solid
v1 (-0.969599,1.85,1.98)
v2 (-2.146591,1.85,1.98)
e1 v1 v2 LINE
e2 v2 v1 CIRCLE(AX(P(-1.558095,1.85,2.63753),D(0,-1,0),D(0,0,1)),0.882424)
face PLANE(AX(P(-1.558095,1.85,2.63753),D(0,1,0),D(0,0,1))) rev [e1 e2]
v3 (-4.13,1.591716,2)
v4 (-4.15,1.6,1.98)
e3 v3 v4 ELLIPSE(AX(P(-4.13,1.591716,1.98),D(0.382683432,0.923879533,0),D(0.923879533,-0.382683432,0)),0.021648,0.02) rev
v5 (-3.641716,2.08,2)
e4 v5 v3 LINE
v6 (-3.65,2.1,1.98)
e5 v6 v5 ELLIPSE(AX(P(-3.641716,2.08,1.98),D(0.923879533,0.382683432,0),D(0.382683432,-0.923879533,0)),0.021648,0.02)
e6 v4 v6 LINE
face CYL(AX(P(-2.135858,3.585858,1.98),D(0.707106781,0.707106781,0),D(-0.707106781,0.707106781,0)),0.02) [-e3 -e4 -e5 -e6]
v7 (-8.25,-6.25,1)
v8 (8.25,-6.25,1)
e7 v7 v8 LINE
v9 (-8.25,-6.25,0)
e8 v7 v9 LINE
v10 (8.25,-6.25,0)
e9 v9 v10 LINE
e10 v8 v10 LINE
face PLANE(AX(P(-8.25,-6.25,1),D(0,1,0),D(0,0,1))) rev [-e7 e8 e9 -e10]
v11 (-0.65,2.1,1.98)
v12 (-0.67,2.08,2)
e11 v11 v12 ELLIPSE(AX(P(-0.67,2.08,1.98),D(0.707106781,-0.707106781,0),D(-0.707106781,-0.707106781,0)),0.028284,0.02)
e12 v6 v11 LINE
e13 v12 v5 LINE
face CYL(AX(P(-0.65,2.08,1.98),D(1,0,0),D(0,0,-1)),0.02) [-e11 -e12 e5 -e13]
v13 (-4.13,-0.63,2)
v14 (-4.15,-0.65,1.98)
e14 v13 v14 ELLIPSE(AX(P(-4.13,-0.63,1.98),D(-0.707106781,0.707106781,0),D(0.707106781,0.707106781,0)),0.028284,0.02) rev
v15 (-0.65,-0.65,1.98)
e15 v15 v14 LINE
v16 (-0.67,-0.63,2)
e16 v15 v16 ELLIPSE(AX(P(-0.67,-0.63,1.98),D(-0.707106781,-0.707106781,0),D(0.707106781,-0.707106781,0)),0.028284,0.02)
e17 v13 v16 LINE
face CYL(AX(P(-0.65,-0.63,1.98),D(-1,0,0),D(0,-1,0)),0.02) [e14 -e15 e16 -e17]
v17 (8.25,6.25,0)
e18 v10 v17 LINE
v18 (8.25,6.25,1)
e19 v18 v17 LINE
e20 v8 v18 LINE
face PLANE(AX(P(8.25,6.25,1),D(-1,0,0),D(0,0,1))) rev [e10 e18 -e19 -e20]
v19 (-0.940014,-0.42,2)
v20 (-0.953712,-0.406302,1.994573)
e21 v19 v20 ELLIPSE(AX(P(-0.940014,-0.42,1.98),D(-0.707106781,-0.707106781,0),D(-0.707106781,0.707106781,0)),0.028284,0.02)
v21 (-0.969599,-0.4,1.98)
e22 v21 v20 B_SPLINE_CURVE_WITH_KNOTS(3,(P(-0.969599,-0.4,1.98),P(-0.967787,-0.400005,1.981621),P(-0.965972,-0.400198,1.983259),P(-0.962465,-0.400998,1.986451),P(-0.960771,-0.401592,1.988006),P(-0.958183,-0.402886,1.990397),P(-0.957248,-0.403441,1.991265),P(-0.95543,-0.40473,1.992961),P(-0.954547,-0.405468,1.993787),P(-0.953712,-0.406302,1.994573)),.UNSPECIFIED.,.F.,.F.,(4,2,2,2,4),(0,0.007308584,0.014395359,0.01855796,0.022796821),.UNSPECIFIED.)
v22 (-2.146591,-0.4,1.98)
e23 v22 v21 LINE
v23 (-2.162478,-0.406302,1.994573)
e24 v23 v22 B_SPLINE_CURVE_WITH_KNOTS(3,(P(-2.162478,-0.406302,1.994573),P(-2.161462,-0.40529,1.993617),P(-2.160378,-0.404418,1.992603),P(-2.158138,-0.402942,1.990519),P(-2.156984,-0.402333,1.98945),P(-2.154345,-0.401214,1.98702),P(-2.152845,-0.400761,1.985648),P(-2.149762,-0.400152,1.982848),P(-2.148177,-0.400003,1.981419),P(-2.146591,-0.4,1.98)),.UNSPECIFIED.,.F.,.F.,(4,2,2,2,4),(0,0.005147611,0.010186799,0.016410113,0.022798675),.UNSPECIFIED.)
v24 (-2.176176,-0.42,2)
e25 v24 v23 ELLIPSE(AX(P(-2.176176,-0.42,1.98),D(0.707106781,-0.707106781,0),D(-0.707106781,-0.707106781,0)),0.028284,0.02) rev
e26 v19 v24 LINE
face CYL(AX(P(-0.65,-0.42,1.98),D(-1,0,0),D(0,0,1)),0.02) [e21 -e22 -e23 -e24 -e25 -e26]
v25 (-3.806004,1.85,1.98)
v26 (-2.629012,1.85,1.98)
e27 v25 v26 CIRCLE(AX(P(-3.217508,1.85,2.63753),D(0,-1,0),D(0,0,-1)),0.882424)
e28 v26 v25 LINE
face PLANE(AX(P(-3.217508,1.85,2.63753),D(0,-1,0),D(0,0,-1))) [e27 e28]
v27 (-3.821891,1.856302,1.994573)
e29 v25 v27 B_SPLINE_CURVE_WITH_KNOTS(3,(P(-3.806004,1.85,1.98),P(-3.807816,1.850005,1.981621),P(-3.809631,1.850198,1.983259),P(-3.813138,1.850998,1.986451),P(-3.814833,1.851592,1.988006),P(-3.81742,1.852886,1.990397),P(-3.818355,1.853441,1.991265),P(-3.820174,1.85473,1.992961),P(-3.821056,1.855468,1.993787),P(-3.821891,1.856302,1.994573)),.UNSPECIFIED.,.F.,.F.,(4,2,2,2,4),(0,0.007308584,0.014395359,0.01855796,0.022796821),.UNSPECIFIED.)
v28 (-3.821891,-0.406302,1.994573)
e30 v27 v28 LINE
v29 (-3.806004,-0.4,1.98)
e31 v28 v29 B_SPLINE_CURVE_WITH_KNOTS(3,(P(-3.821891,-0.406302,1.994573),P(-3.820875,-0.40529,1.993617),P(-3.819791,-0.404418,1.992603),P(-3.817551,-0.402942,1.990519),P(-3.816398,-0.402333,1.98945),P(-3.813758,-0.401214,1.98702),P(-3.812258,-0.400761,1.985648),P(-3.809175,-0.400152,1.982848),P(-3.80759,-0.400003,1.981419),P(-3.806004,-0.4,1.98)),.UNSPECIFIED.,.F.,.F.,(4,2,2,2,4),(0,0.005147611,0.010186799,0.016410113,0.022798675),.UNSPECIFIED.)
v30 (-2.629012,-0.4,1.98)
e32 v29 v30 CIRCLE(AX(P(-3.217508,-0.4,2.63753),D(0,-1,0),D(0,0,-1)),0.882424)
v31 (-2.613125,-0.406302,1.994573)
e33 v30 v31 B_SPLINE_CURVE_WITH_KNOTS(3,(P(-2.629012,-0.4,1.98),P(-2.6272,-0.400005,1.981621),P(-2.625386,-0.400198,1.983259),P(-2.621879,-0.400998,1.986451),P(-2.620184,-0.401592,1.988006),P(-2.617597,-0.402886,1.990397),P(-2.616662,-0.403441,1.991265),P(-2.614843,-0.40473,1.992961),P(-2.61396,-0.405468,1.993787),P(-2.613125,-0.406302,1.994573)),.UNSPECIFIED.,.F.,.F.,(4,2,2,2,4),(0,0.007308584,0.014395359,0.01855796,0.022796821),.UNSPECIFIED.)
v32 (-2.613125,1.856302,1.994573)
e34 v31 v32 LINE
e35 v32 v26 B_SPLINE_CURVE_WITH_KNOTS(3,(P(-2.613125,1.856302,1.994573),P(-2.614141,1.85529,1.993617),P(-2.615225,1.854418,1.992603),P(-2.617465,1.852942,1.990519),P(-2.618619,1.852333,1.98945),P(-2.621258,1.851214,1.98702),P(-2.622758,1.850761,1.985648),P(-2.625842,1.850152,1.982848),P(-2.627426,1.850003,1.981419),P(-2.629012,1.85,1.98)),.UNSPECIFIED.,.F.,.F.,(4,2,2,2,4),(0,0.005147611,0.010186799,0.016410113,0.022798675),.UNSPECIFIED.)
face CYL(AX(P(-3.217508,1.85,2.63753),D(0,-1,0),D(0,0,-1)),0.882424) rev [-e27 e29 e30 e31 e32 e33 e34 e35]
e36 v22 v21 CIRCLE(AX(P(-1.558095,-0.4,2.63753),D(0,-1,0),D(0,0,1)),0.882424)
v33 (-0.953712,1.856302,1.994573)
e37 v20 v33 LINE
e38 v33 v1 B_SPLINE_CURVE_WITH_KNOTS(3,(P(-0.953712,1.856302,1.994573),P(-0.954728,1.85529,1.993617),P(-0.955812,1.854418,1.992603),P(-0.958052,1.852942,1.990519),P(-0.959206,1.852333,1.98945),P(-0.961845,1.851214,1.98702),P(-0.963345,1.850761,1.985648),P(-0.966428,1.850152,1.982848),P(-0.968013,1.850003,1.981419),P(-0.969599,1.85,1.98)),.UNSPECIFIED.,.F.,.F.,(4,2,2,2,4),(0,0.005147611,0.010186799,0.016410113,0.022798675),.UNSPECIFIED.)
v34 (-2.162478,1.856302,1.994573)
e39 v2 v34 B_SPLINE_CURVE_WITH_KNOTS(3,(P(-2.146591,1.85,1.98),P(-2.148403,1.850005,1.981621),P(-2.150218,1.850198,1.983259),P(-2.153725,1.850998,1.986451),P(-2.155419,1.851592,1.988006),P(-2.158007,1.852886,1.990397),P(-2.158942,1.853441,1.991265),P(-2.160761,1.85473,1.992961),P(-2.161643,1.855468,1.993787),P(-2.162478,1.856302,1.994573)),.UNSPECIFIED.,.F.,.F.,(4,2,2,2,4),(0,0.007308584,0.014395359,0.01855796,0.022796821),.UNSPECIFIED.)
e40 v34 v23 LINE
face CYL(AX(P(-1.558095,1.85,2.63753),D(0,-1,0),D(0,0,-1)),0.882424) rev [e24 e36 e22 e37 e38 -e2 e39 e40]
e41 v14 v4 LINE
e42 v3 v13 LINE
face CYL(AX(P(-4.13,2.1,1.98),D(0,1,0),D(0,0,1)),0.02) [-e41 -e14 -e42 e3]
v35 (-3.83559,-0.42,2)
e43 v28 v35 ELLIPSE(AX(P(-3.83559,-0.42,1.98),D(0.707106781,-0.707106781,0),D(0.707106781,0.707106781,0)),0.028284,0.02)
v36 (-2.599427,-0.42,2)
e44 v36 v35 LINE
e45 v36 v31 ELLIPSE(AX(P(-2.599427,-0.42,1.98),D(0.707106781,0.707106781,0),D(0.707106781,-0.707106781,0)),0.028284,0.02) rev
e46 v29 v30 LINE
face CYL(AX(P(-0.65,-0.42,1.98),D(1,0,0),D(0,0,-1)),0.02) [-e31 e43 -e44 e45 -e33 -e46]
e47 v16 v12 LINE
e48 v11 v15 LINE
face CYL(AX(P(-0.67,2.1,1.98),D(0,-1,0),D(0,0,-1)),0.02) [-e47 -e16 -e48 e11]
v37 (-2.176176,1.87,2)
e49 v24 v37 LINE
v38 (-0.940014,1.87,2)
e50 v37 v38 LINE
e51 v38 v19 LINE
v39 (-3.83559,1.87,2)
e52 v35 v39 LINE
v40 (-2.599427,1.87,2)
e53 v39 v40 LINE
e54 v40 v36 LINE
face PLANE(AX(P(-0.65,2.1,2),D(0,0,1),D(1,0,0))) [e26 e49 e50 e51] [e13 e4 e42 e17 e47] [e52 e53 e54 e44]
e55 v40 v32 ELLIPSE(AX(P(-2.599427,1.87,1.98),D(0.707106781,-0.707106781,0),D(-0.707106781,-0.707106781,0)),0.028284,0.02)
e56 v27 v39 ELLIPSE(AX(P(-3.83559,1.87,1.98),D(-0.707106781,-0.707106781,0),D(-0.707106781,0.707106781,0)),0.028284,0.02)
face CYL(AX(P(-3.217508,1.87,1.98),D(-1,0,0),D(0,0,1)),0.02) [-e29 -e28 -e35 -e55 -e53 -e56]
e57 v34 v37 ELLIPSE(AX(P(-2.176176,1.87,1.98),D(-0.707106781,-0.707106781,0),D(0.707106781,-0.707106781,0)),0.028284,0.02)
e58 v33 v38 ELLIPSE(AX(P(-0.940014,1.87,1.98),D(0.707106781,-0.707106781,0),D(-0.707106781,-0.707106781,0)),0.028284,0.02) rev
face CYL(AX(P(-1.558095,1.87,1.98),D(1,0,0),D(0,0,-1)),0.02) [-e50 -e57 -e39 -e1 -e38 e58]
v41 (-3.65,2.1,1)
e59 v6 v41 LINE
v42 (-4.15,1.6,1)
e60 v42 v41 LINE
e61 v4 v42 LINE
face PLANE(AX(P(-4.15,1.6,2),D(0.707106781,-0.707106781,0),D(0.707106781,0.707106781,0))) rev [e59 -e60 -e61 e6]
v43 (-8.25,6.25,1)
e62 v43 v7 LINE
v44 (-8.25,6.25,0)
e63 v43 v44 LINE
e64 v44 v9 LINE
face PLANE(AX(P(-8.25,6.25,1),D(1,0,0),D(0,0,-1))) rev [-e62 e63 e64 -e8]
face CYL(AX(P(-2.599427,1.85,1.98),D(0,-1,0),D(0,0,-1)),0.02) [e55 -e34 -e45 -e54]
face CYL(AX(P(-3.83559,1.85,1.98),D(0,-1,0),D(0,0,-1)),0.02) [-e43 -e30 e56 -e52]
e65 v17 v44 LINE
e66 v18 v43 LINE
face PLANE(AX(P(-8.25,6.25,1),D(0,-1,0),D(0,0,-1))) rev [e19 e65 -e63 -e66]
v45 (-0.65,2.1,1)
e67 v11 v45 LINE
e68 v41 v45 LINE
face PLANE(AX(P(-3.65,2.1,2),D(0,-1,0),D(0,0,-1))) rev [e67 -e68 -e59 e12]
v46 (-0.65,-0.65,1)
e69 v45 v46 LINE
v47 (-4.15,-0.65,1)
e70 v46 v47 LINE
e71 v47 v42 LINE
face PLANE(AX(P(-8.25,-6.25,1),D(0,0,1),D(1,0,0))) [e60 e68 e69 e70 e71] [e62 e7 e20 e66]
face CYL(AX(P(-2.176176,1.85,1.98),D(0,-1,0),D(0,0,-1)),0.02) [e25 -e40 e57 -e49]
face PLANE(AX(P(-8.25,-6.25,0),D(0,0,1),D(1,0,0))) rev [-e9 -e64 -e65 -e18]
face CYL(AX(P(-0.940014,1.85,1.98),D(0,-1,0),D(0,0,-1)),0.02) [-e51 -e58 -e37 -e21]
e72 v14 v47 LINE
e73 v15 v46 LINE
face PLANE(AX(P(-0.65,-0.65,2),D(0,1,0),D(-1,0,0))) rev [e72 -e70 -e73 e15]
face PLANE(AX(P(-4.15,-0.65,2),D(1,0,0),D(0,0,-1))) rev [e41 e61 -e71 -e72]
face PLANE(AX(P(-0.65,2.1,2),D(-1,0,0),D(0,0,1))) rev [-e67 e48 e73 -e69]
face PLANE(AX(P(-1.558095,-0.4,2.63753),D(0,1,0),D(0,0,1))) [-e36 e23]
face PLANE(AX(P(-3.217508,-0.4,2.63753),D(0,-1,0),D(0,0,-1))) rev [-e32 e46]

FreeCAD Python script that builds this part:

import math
import FreeCAD as App
import Part
import Sketcher
Q = App.Units.Quantity


def edges_at(feature, points):
    """Names of the edges that pass closest to the given points."""
    edges = feature.Shape.Edges
    near = lambda p: min(range(len(edges)), key=lambda i: edges[i].distToShape(Part.Vertex(*p))[0])
    return sorted({f"Edge{near(p) + 1}" for p in points})

doc = App.newDocument("Part")
params = doc.addObject("Spreadsheet::Sheet", "Params")
for row, (alias, value) in enumerate([
    ("sketch1_width", "16.5 mm"),
    ("sketch1_height", "12.5 mm"),
    ("pad1_length", "1 mm"),
    ("sketch2_width", "3 mm"),
    ("sketch2_width2", "3.5 mm"),
    ("sketch2_height", "2.25 mm"),
    ("pad2_length", "2 mm"),
    ("pocket1_length", "2.25 mm"),
    ("fillet_radius", "0.02 mm"),
], start=1):
    params.set(f"A{row}", alias)
    params.set(f"B{row}", "=" + value)
    params.setAlias(f"B{row}", alias)

body = doc.addObject("PartDesign::Body", "Body")

# Sketch on XY plane
sketch1 = body.newObject("Sketcher::SketchObject", "Sketch")
sketch1.AttachmentSupport = (doc.getObject("XY_Plane"), [""])
sketch1.MapMode = "FlatFace"
sketch1.addGeometry([
    Part.LineSegment(App.Vector(-8, 6, 0), App.Vector(-8, -6, 0)),
    Part.LineSegment(App.Vector(-8, -6, 0), App.Vector(8, -6, 0)),
    Part.LineSegment(App.Vector(8, -6, 0), App.Vector(8, 6, 0)),
    Part.LineSegment(App.Vector(8, 6, 0), App.Vector(-8, 6, 0)),
], False)
sketch1.addConstraint([
    Sketcher.Constraint("Coincident", 0, 2, 1, 1),
    Sketcher.Constraint("Coincident", 1, 2, 2, 1),
    Sketcher.Constraint("Coincident", 2, 2, 3, 1),
    Sketcher.Constraint("Coincident", 3, 2, 0, 1),
    Sketcher.Constraint("Vertical", 0),
    Sketcher.Constraint("Horizontal", 1),
    Sketcher.Constraint("Vertical", 2),
    Sketcher.Constraint("Horizontal", 3),
    Sketcher.Constraint("Symmetric", 0, 2, 2, 2, -1, 1),
    Sketcher.Constraint("DistanceX", 1, 1, 1, 2, 16.5),
    Sketcher.Constraint("DistanceY", 0, 2, 0, 1, 12.5),
])
sketch1.setExpression("Constraints[9]", "Params.sketch1_width")
sketch1.setExpression("Constraints[10]", "Params.sketch1_height")
pad1 = body.newObject("PartDesign::Pad", "Pad")
pad1.Profile = sketch1
pad1.setExpression("Length", "Params.pad1_length")

# Sketch on XY plane
sketch2 = body.newObject("Sketcher::SketchObject", "Sketch001")
sketch2.AttachmentSupport = (doc.getObject("XY_Plane"), [""])
sketch2.MapMode = "FlatFace"
sketch2.addGeometry([
    Part.LineSegment(App.Vector(-0.7, 2.1, 0), App.Vector(-3.6, 2.1, 0)),  # 0
    Part.LineSegment(App.Vector(-3.6, 2.1, 0), App.Vector(-4.2, 1.6, 0)),  # 1
    Part.LineSegment(App.Vector(-4.2, 1.6, 0), App.Vector(-4.2, -0.7, 0)),  # 2
    Part.LineSegment(App.Vector(-4.2, -0.7, 0), App.Vector(-0.7, -0.7, 0)),  # 3
    Part.LineSegment(App.Vector(-0.7, -0.7, 0), App.Vector(-0.7, 2.1, 0)),  # 4
], False)
sketch2.addConstraint([
    Sketcher.Constraint("Coincident", 0, 2, 1, 1),
    Sketcher.Constraint("Coincident", 1, 2, 2, 1),
    Sketcher.Constraint("Coincident", 2, 2, 3, 1),
    Sketcher.Constraint("Coincident", 3, 2, 4, 1),
    Sketcher.Constraint("Coincident", 4, 2, 0, 1),
    Sketcher.Constraint("Horizontal", 0),
    Sketcher.Constraint("Vertical", 2),
    Sketcher.Constraint("Horizontal", 3),
    Sketcher.Constraint("Vertical", 4),
    Sketcher.Constraint("DistanceX", 0, 2, 0, 1, 3.0),
    Sketcher.Constraint("Angle", 1, Q("-135 deg")),
    Sketcher.Constraint("DistanceX", 3, 1, 3, 2, 3.5),
    Sketcher.Constraint("DistanceY", 2, 2, 2, 1, 2.25),
    Sketcher.Constraint("DistanceY", -1, 1, 0, 2, 2.1),
    Sketcher.Constraint("DistanceX", 0, 2, -1, 1, 3.65),
])
sketch2.setExpression("Constraints[9]", "Params.sketch2_width")
sketch2.setExpression("Constraints[11]", "Params.sketch2_width2")
sketch2.setExpression("Constraints[12]", "Params.sketch2_height")
pad2 = body.newObject("PartDesign::Pad", "Pad001")
pad2.Profile = sketch2
pad2.setExpression("Length", "Params.pad2_length")

# Sketch on XZ plane
sketch3 = body.newObject("Sketcher::SketchObject", "Sketch002")
sketch3.AttachmentSupport = (doc.getObject("XZ_Plane"), [""])
sketch3.MapMode = "FlatFace"
sketch3.AttachmentOffset = App.Placement(App.Vector(0, 0, 0.4), App.Rotation())
sketch3.addGeometry([
    Part.LineSegment(App.Vector(-0.9, 2, 0), App.Vector(-2.2, 2, 0)),
    Part.ArcOfCircle(Part.Circle(App.Vector(-1.6, 2.6, 0), App.Vector(0, 0, 1), 0.9), math.radians(-134), math.radians(-46)),
    Part.LineSegment(App.Vector(-2.6, 2, 0), App.Vector(-3.8, 2, 0)),
    Part.ArcOfCircle(Part.Circle(App.Vector(-3.2, 2.6, 0), App.Vector(0, 0, 1), 0.9), math.radians(-134), math.radians(-46)),
], False)
sketch3.addConstraint([
    Sketcher.Constraint("Coincident", 0, 1, 1, 2),
    Sketcher.Constraint("Coincident", 1, 1, 0, 2),
    Sketcher.Constraint("Coincident", 2, 1, 3, 2),
    Sketcher.Constraint("Coincident", 3, 1, 2, 2),
    Sketcher.Constraint("Horizontal", 0),
    Sketcher.Constraint("Horizontal", 2),
    Sketcher.Constraint("Equal", 1, 3),
    Sketcher.Constraint("Horizontal", 1, 3, 3, 3),
    Sketcher.Constraint("Horizontal", 1, 1, 2, 1),
    Sketcher.Constraint("DistanceY", -1, 1, 0, 1, 2.0),
    Sketcher.Constraint("Radius", 1, 0.882424),
    Sketcher.Constraint("DistanceX", 0, 2, 0, 1, 1.220211),
    Sketcher.Constraint("DistanceX", 1, 1, -1, 1, 2.168201),
    Sketcher.Constraint("DistanceX", 3, 3, -1, 1, 3.217508),
])
pocket1 = body.newObject("PartDesign::Pocket", "Pocket")
pocket1.Profile = sketch3
pocket1.setExpression("Length", "Params.pocket1_length")
doc.recompute()

fillet = body.newObject("PartDesign::Fillet", "Fillet")
fillet.Base = (pocket1, edges_at(pocket1, [
    (-2.15, 2.1, 2),
    (-0.65, 0.725, 2),
    (-2.4, -0.65, 2),
    (-4.15, 0.475, 2),
    (-3.9, 1.85, 2),
    (-2.168, 0.725, 2),
    (-1.558, 1.85, 2),
    (-0.948, 0.725, 2),
    (-1.558, -0.4, 2),
    (-3.218, -0.4, 2),
    (-3.828, 0.725, 2),
    (-3.218, 1.85, 2),
    (-2.607, 0.725, 2),
]))
fillet.setExpression("Radius", "Params.fillet_radius")

doc.recompute()
